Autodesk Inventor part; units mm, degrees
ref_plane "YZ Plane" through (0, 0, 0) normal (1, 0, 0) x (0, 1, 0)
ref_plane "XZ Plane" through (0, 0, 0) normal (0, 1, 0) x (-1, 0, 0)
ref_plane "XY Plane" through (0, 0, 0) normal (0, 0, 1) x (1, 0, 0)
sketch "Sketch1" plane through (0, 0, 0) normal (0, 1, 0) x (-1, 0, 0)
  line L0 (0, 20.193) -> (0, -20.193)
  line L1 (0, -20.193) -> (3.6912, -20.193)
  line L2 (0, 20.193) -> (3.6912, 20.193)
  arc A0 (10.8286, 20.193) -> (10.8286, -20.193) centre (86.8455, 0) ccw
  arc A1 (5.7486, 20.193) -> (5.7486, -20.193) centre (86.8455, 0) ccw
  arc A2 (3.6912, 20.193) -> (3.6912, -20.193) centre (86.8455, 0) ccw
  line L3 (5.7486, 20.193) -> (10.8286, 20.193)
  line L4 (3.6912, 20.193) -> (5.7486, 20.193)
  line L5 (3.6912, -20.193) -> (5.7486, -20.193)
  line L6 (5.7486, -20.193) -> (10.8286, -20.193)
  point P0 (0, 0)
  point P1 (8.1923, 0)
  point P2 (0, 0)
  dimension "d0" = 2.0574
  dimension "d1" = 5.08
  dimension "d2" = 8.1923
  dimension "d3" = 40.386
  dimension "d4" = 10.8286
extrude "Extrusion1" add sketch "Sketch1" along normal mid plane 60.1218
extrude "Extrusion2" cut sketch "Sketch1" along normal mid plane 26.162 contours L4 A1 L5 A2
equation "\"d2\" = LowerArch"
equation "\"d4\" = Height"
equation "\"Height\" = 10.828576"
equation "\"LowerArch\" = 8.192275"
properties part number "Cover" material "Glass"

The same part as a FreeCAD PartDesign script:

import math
import FreeCAD as App
import Part
import Sketcher

V = App.Vector
Q = App.Units.Quantity

doc = App.newDocument("Part")
body = doc.addObject("PartDesign::Body", "Body")

sketch1 = body.newObject("Sketcher::SketchObject", "Sketch")
sketch1.AttachmentSupport = (doc.getObject("XZ_Plane"), [""])
sketch1.MapMode = "FlatFace"
sketch1.addGeometry([
    Part.LineSegment(V(0, 20, 0), V(0, -20, 0)),
    Part.LineSegment(V(0, -20, 0), V(-11, -20, 0)),
    Part.ArcOfCircle(Part.Circle(V(-87, 0, 0), V(0, 0, 1), 79), math.radians(-15), math.radians(15)),
    Part.LineSegment(V(-11, 20, 0), V(0, 20, 0)),
], False)
sketch1.addConstraint([
    Sketcher.Constraint("Coincident", 0, 2, 1, 1),
    Sketcher.Constraint("Coincident", 1, 2, 2, 1),
    Sketcher.Constraint("Coincident", 2, 2, 3, 1),
    Sketcher.Constraint("Coincident", 3, 2, 0, 1),
    Sketcher.Constraint("Vertical", 0),
    Sketcher.Constraint("Horizontal", 1),
    Sketcher.Constraint("Horizontal", 3),
    Sketcher.Constraint("Symmetric", 0, 2, 3, 2, -1, 1),
    Sketcher.Constraint("PointOnObject", 2, 3, -1),
    Sketcher.Constraint("DistanceY", 0, 2, 0, 1, Q("1.59 in")),
    Sketcher.Constraint("DistanceX", 1, 2, 1, 1, Q("10.8286 mm")),
    Sketcher.Constraint("Radius", 2, Q("78.6532 mm")),
])
pad1 = body.newObject("PartDesign::Pad", "Pad")
pad1.Profile = sketch1
pad1.Length = Q("2.367 in")
pad1.Midplane = True

sketch2 = body.newObject("Sketcher::SketchObject", "Sketch001")
sketch2.AttachmentSupport = (doc.getObject("XZ_Plane"), [""])
sketch2.MapMode = "FlatFace"
sketch2.addGeometry([
    Part.LineSegment(V(-5.7, 20.2, 0), V(-3.7, 20.2, 0)),
    Part.ArcOfCircle(Part.Circle(V(-86.8, 0, 0), V(0, 0, 1), 85.6), math.radians(-14), math.radians(14)),
    Part.LineSegment(V(-3.7, -20.2, 0), V(-5.7, -20.2, 0)),
    Part.ArcOfCircle(Part.Circle(V(-86.8, 0, 0), V(0, 0, 1), 83.6), math.radians(-14), math.radians(14)),
], False)
sketch2.addConstraint([
    Sketcher.Constraint("Coincident", 0, 2, 1, 2),
    Sketcher.Constraint("Coincident", 1, 1, 2, 1),
    Sketcher.Constraint("Coincident", 2, 2, 3, 1),
    Sketcher.Constraint("Coincident", 3, 2, 0, 1),
    Sketcher.Constraint("Horizontal", 0),
    Sketcher.Constraint("Horizontal", 2),
    Sketcher.Constraint("Coincident", 3, 3, 1, 3),
    Sketcher.Constraint("Symmetric", 0, 2, 1, 1, -1),
    Sketcher.Constraint("DistanceX", 0, 1, 0, 2, Q("0.081 in")),
    Sketcher.Constraint("DistanceY", 1, 1, 0, 2, Q("1.59 in")),
    Sketcher.Constraint("Radius", 1, Q("85.571 mm")),
    Sketcher.Constraint("DistanceX", 1, 3, -1, 1, Q("86.8455 mm")),
])
pocket1 = body.newObject("PartDesign::Pocket", "Pocket")
pocket1.Profile = sketch2
pocket1.Length = Q("1.03 in")
pocket1.Midplane = True

doc.recompute()
